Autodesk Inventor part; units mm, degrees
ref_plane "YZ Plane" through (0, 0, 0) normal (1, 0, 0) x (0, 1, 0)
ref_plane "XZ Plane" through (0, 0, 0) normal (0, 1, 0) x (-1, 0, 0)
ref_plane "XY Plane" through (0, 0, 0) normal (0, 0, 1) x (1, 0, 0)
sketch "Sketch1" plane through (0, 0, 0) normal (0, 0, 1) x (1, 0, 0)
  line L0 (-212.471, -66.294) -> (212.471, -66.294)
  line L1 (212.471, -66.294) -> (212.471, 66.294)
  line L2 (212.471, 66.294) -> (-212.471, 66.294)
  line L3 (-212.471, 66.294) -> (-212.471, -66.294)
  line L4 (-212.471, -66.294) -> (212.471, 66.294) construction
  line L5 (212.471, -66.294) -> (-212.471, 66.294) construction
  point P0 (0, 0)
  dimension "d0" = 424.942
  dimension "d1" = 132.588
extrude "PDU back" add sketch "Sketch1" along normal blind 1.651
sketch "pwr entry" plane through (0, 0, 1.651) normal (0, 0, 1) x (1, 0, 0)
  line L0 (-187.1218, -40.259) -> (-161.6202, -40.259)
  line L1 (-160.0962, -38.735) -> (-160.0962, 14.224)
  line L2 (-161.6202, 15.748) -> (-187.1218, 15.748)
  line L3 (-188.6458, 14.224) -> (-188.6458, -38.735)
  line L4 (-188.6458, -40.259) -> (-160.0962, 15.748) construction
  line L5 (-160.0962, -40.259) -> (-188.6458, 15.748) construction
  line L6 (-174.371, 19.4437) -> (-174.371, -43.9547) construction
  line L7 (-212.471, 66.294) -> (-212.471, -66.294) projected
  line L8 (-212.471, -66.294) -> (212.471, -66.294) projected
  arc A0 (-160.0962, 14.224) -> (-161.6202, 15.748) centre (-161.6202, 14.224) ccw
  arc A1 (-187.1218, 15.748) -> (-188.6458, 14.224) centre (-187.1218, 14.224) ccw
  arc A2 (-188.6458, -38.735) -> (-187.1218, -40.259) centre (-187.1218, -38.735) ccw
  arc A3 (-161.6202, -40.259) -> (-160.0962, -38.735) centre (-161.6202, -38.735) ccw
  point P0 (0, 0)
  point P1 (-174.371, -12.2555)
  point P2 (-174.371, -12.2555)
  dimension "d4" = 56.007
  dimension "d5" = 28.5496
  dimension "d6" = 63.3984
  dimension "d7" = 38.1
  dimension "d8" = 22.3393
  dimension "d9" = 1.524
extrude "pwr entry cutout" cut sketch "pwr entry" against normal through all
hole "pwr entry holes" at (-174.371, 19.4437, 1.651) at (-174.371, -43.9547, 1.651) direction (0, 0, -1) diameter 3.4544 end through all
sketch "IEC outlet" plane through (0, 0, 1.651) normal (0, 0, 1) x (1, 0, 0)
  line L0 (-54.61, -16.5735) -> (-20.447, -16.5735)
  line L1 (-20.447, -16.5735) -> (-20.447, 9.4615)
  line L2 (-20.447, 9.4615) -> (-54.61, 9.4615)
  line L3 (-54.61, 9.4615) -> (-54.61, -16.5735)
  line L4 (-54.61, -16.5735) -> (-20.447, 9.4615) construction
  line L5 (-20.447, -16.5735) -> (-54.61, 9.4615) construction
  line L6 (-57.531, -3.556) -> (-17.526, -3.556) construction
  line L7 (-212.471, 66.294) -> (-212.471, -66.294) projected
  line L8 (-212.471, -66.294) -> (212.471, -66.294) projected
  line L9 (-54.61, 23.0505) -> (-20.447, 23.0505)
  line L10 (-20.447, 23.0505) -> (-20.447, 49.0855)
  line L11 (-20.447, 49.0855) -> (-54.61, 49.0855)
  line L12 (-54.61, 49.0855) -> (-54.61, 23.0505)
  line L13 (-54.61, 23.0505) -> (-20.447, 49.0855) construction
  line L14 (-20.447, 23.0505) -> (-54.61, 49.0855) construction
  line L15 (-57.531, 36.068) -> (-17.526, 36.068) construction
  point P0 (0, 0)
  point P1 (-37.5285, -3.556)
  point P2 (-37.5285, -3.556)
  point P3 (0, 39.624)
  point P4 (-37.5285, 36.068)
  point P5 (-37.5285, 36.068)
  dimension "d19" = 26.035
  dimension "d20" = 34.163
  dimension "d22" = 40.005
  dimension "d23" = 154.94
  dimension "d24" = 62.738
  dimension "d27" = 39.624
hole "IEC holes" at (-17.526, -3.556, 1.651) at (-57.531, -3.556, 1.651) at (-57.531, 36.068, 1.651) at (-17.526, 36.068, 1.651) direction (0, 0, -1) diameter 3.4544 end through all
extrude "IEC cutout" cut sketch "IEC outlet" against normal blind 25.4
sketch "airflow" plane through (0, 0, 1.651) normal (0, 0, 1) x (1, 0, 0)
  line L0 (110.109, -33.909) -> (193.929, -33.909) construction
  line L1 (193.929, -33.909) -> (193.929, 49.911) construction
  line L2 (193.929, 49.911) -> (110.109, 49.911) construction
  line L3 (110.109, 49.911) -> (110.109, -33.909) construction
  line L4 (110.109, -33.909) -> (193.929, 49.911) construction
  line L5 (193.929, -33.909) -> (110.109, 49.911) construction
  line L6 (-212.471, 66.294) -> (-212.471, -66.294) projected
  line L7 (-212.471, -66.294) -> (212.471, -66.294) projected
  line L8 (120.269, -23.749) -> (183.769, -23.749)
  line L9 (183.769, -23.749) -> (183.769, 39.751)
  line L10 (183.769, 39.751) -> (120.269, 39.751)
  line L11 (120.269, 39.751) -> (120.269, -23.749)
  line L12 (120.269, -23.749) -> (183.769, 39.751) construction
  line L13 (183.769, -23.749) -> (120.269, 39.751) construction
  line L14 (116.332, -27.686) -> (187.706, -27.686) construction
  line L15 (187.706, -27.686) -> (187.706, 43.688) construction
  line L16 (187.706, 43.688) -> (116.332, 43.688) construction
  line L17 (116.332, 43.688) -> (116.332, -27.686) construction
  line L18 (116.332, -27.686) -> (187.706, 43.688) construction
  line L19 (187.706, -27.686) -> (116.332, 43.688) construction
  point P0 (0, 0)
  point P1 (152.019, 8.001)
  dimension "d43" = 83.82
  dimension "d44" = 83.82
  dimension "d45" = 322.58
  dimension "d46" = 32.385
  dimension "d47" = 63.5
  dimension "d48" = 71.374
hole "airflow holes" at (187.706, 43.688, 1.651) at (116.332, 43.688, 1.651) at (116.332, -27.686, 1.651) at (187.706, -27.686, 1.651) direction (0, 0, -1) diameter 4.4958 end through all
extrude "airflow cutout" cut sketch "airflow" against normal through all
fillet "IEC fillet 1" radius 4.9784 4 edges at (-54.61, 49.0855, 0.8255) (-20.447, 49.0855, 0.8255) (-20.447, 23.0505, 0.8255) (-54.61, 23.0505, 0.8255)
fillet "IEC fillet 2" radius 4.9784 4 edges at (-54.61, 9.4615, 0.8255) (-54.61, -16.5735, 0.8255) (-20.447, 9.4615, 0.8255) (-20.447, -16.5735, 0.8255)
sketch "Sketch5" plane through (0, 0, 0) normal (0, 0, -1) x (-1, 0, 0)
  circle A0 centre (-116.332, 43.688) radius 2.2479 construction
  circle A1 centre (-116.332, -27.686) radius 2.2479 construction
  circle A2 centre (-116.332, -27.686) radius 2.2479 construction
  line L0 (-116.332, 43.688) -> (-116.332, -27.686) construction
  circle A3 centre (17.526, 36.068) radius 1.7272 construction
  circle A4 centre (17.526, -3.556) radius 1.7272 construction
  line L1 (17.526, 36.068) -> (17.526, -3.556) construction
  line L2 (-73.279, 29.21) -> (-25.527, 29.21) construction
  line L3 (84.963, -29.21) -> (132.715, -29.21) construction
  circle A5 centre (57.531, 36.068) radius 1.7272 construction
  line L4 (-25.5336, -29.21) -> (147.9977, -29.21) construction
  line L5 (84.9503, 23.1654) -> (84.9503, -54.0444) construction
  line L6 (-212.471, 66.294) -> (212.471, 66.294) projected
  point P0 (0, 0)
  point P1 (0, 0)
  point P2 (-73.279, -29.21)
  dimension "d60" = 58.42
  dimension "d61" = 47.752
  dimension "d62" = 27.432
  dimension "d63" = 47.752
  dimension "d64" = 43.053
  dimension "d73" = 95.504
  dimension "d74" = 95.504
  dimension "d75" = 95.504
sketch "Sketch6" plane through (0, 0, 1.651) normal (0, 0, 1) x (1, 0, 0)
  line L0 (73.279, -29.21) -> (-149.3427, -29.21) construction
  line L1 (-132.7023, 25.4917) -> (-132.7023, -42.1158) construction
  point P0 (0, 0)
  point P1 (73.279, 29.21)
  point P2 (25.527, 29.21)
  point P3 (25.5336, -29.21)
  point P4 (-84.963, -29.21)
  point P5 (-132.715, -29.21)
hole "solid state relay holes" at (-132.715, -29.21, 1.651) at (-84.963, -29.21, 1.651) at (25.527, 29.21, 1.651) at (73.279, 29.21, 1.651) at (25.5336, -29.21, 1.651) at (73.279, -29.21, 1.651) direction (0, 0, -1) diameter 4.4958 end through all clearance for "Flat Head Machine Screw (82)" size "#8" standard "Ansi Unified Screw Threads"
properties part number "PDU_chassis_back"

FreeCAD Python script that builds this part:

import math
import FreeCAD as App
import Part
import Sketcher

V = App.Vector
Q = App.Units.Quantity


def edges_at(feature, points):
    """Names of the edges that pass closest to the given points."""
    edges = feature.Shape.Edges
    near = lambda p: min(range(len(edges)), key=lambda i: edges[i].distToShape(Part.Vertex(*p))[0])
    return sorted({f"Edge{near(p) + 1}" for p in points})

doc = App.newDocument("Part")
params = doc.addObject("Spreadsheet::Sheet", "Params")
for row, (alias, value) in enumerate([
    ("sketch1_width", "16.73 in"),
    ("sketch1_height", "5.22 in"),
    ("pad1_length", "0.065 in"),
    ("sketch2_radius", "0.06 in"),
    ("sketch2_height", "2.085 in"),
    ("sketch3_diameter", "0.136 in"),
    ("hole_diameter", "0.136 in"),
    ("sketch4_diameter", "0.136 in"),
    ("hole2_diameter", "0.136 in"),
    ("sketch5_width", "1.345 in"),
    ("sketch5_height", "1.025 in"),
    ("pocket2_length", "1 in"),
    ("sketch6_diameter", "0.177 in"),
    ("hole3_diameter", "0.177 in"),
    ("sketch7_width", "2.5 in"),
    ("fillet_radius", "0.196 in"),
    ("fillet2_radius", "0.196 in"),
    ("sketch8_diameter", "0.177 in"),
    ("hole4_diameter", "0.177 in"),
], start=1):
    params.set(f"A{row}", alias)
    params.set(f"B{row}", "=" + value)
    params.setAlias(f"B{row}", alias)

body = doc.addObject("PartDesign::Body", "Body")

sketch1 = body.newObject("Sketcher::SketchObject", "Sketch")
sketch1.AttachmentSupport = (doc.getObject("XY_Plane"), [""])
sketch1.MapMode = "FlatFace"
sketch1.addGeometry([
    Part.LineSegment(V(-212, 66, 0), V(-212, -66, 0)),
    Part.LineSegment(V(-212, -66, 0), V(212, -66, 0)),
    Part.LineSegment(V(212, -66, 0), V(212, 66, 0)),
    Part.LineSegment(V(212, 66, 0), V(-212, 66, 0)),
], False)
sketch1.addConstraint([
    Sketcher.Constraint("Coincident", 0, 2, 1, 1),
    Sketcher.Constraint("Coincident", 1, 2, 2, 1),
    Sketcher.Constraint("Coincident", 2, 2, 3, 1),
    Sketcher.Constraint("Coincident", 3, 2, 0, 1),
    Sketcher.Constraint("Vertical", 0),
    Sketcher.Constraint("Horizontal", 1),
    Sketcher.Constraint("Vertical", 2),
    Sketcher.Constraint("Horizontal", 3),
    Sketcher.Constraint("Symmetric", 0, 2, 2, 2, -1, 1),
    Sketcher.Constraint("DistanceX", 1, 1, 1, 2, Q("16.73 in")),
    Sketcher.Constraint("DistanceY", 0, 2, 0, 1, Q("5.22 in")),
])
sketch1.setExpression("Constraints[9]", "Params.sketch1_width")
sketch1.setExpression("Constraints[10]", "Params.sketch1_height")
pad1 = body.newObject("PartDesign::Pad", "Pad")
pad1.Profile = sketch1
pad1.setExpression("Length", "Params.pad1_length")

sketch2 = body.newObject("Sketcher::SketchObject", "Sketch001")
sketch2.AttachmentSupport = (doc.getObject("XY_Plane"), [""])
sketch2.MapMode = "FlatFace"
sketch2.AttachmentOffset = App.Placement(V(0, 0, 0.065 * 25.4), App.Rotation())
sketch2.addGeometry([
    Part.ArcOfCircle(Part.Circle(V(-187.1, -38.7, 0), V(0, 0, 1), 1.5), math.radians(180), math.radians(270)),
    Part.LineSegment(V(-187.1, -40.3, 0), V(-161.6, -40.3, 0)),
    Part.ArcOfCircle(Part.Circle(V(-161.6, -38.7, 0), V(0, 0, 1), 1.5), math.radians(-90), math.radians(0)),
    Part.LineSegment(V(-160.1, -38.7, 0), V(-160.1, 14.2, 0)),
    Part.ArcOfCircle(Part.Circle(V(-161.6, 14.2, 0), V(0, 0, 1), 1.5), math.radians(0), math.radians(90)),
    Part.LineSegment(V(-161.6, 15.7, 0), V(-187.1, 15.7, 0)),
    Part.ArcOfCircle(Part.Circle(V(-187.1, 14.2, 0), V(0, 0, 1), 1.5), math.radians(90), math.radians(180)),
    Part.LineSegment(V(-188.6, 14.2, 0), V(-188.6, -38.7, 0)),
], False)
sketch2.addConstraint([
    Sketcher.Constraint("Tangent", 0, 2, 1, 1),
    Sketcher.Constraint("Tangent", 1, 2, 2, 1),
    Sketcher.Constraint("Tangent", 2, 2, 3, 1),
    Sketcher.Constraint("Tangent", 3, 2, 4, 1),
    Sketcher.Constraint("Tangent", 4, 2, 5, 1),
    Sketcher.Constraint("Tangent", 5, 2, 6, 1),
    Sketcher.Constraint("Tangent", 6, 2, 7, 1),
    Sketcher.Constraint("Tangent", 7, 2, 0, 1),
    Sketcher.Constraint("Horizontal", 1),
    Sketcher.Constraint("Vertical", 3),
    Sketcher.Constraint("Horizontal", 5),
    Sketcher.Constraint("Vertical", 7),
    Sketcher.Constraint("Equal", 0, 2),
    Sketcher.Constraint("Equal", 2, 4),
    Sketcher.Constraint("Equal", 4, 6),
    Sketcher.Constraint("Radius", 0, Q("0.06 in")),
    Sketcher.Constraint("DistanceX", 6, 2, 3, 2, Q("1.124 in")),
    Sketcher.Constraint("DistanceY", 3, 1, 3, 2, Q("2.085 in")),
    Sketcher.Constraint("DistanceY", -1, 1, 4, 3, Q("0.56 in")),
    Sketcher.Constraint("DistanceX", 0, 3, -1, 1, Q("7.367 in")),
])
sketch2.setExpression("Constraints[15]", "Params.sketch2_radius")
sketch2.setExpression("Constraints[17]", "Params.sketch2_height")
pocket1 = body.newObject("PartDesign::Pocket", "Pocket")
pocket1.Profile = sketch2
pocket1.Type = "ThroughAll"

sketch3 = body.newObject("Sketcher::SketchObject", "Sketch002")
sketch3.AttachmentSupport = (doc.getObject("XY_Plane"), [""])
sketch3.MapMode = "FlatFace"
sketch3.AttachmentOffset = App.Placement(V(0, 0, 0.065 * 25.4), App.Rotation())
sketch3.addGeometry([
    Part.Circle(V(-174.4, 19.4, 0), V(0, 0, 1), 1.7),
    Part.Circle(V(-174.4, -44, 0), V(0, 0, 1), 1.7),
], False)
sketch3.addConstraint([
    Sketcher.Constraint("Equal", 0, 1),
    Sketcher.Constraint("Vertical", 0, 3, 1, 3),
    Sketcher.Constraint("Diameter", 0, Q("0.136 in")),
    Sketcher.Constraint("DistanceX", 0, 3, -1, 1, Q("6.865 in")),
    Sketcher.Constraint("DistanceY", 1, 3, 0, 3, Q("2.496 in")),
    Sketcher.Constraint("DistanceY", -1, 1, 0, 3, Q("0.7655 in")),
])
sketch3.setExpression("Constraints[2]", "Params.sketch3_diameter")
doc.recompute()
hole = body.newObject("PartDesign::Hole", "Hole")
hole.Profile = sketch3
hole.ThreadType = "None"
hole.setExpression("Diameter", "Params.hole_diameter")
hole.DepthType = "ThroughAll"

sketch4 = body.newObject("Sketcher::SketchObject", "Sketch003")
sketch4.AttachmentSupport = (doc.getObject("XY_Plane"), [""])
sketch4.MapMode = "FlatFace"
sketch4.AttachmentOffset = App.Placement(V(0, 0, 0.065 * 25.4), App.Rotation())
sketch4.addGeometry([
    Part.Circle(V(-17.5, -3.6, 0), V(0, 0, 1), 1.7),
    Part.Circle(V(-57.5, -3.6, 0), V(0, 0, 1), 1.7),
    Part.Circle(V(-57.5, 36.1, 0), V(0, 0, 1), 1.7),
    Part.Circle(V(-17.5, 36.1, 0), V(0, 0, 1), 1.7),
], False)
sketch4.addConstraint([
    Sketcher.Constraint("Equal", 0, 1),
    Sketcher.Constraint("Equal", 1, 2),
    Sketcher.Constraint("Equal", 2, 3),
    Sketcher.Constraint("Horizontal", 0, 3, 1, 3),
    Sketcher.Constraint("Horizontal", 2, 3, 3, 3),
    Sketcher.Constraint("Vertical", 1, 3, 2, 3),
    Sketcher.Constraint("Vertical", 0, 3, 3, 3),
    Sketcher.Constraint("Diameter", 0, Q("0.136 in")),
    Sketcher.Constraint("DistanceX", 0, 3, -1, 1, Q("0.69 in")),
    Sketcher.Constraint("DistanceY", 0, 3, -1, 1, Q("0.14 in")),
    Sketcher.Constraint("DistanceY", -1, 1, 2, 3, Q("1.42 in")),
    Sketcher.Constraint("DistanceX", 1, 3, -1, 1, Q("2.265 in")),
])
sketch4.setExpression("Constraints[7]", "Params.sketch4_diameter")
doc.recompute()
hole2 = body.newObject("PartDesign::Hole", "Hole001")
hole2.Profile = sketch4
hole2.ThreadType = "None"
hole2.setExpression("Diameter", "Params.hole2_diameter")
hole2.DepthType = "ThroughAll"

sketch5 = body.newObject("Sketcher::SketchObject", "Sketch004")
sketch5.AttachmentSupport = (doc.getObject("XY_Plane"), [""])
sketch5.MapMode = "FlatFace"
sketch5.AttachmentOffset = App.Placement(V(0, 0, 0.065 * 25.4), App.Rotation())
sketch5.addGeometry([
    Part.LineSegment(V(-55, 9, 0), V(-55, -17, 0)),
    Part.LineSegment(V(-55, -17, 0), V(-20, -17, 0)),
    Part.LineSegment(V(-20, -17, 0), V(-20, 9, 0)),
    Part.LineSegment(V(-20, 9, 0), V(-55, 9, 0)),
    Part.LineSegment(V(-55, 49, 0), V(-55, 23, 0)),
    Part.LineSegment(V(-55, 23, 0), V(-20, 23, 0)),
    Part.LineSegment(V(-20, 23, 0), V(-20, 49, 0)),
    Part.LineSegment(V(-20, 49, 0), V(-55, 49, 0)),
], False)
sketch5.addConstraint([
    Sketcher.Constraint("Coincident", 0, 2, 1, 1),
    Sketcher.Constraint("Coincident", 1, 2, 2, 1),
    Sketcher.Constraint("Coincident", 2, 2, 3, 1),
    Sketcher.Constraint("Coincident", 3, 2, 0, 1),
    Sketcher.Constraint("Coincident", 4, 2, 5, 1),
    Sketcher.Constraint("Coincident", 5, 2, 6, 1),
    Sketcher.Constraint("Coincident", 6, 2, 7, 1),
    Sketcher.Constraint("Coincident", 7, 2, 4, 1),
    Sketcher.Constraint("Vertical", 0),
    Sketcher.Constraint("Horizontal", 1),
    Sketcher.Constraint("Vertical", 2),
    Sketcher.Constraint("Horizontal", 3),
    Sketcher.Constraint("Vertical", 4),
    Sketcher.Constraint("Horizontal", 5),
    Sketcher.Constraint("Vertical", 6),
    Sketcher.Constraint("Horizontal", 7),
    Sketcher.Constraint("Vertical", 3, 2, 4, 2),
    Sketcher.Constraint("Vertical", 2, 2, 5, 2),
    Sketcher.Constraint("Equal", 2, 4),
    Sketcher.Constraint("DistanceX", 1, 1, 1, 2, Q("1.345 in")),
    Sketcher.Constraint("DistanceY", 0, 2, 0, 1, Q("1.025 in")),
    Sketcher.Constraint("DistanceY", 0, 2, 4, 2, Q("1.56 in")),
    Sketcher.Constraint("DistanceX", 0, 2, -1, 1, Q("2.15 in")),
    Sketcher.Constraint("DistanceY", 0, 2, -1, 1, Q("0.6525 in")),
])
sketch5.setExpression("Constraints[19]", "Params.sketch5_width")
sketch5.setExpression("Constraints[20]", "Params.sketch5_height")
pocket2 = body.newObject("PartDesign::Pocket", "Pocket001")
pocket2.Profile = sketch5
pocket2.setExpression("Length", "Params.pocket2_length")

sketch6 = body.newObject("Sketcher::SketchObject", "Sketch005")
sketch6.AttachmentSupport = (doc.getObject("XY_Plane"), [""])
sketch6.MapMode = "FlatFace"
sketch6.AttachmentOffset = App.Placement(V(0, 0, 0.065 * 25.4), App.Rotation())
sketch6.addGeometry([
    Part.Circle(V(187.7, 43.7, 0), V(0, 0, 1), 2.2),
    Part.Circle(V(116.3, 43.7, 0), V(0, 0, 1), 2.2),
    Part.Circle(V(116.3, -27.7, 0), V(0, 0, 1), 2.2),
    Part.Circle(V(187.7, -27.7, 0), V(0, 0, 1), 2.2),
], False)
sketch6.addConstraint([
    Sketcher.Constraint("Equal", 0, 1),
    Sketcher.Constraint("Equal", 1, 2),
    Sketcher.Constraint("Equal", 2, 3),
    Sketcher.Constraint("Horizontal", 0, 3, 1, 3),
    Sketcher.Constraint("Horizontal", 2, 3, 3, 3),
    Sketcher.Constraint("Vertical", 1, 3, 2, 3),
    Sketcher.Constraint("Vertical", 0, 3, 3, 3),
    Sketcher.Constraint("Diameter", 0, Q("0.177 in")),
    Sketcher.Constraint("DistanceX", -1, 1, 0, 3, Q("7.39 in")),
    Sketcher.Constraint("DistanceY", -1, 1, 0, 3, Q("1.72 in")),
    Sketcher.Constraint("DistanceX", -1, 1, 1, 3, Q("4.58 in")),
    Sketcher.Constraint("DistanceY", 2, 3, -1, 1, Q("1.09 in")),
])
sketch6.setExpression("Constraints[7]", "Params.sketch6_diameter")
doc.recompute()
hole3 = body.newObject("PartDesign::Hole", "Hole002")
hole3.Profile = sketch6
hole3.ThreadType = "None"
hole3.setExpression("Diameter", "Params.hole3_diameter")
hole3.DepthType = "ThroughAll"

sketch7 = body.newObject("Sketcher::SketchObject", "Sketch006")
sketch7.AttachmentSupport = (doc.getObject("XY_Plane"), [""])
sketch7.MapMode = "FlatFace"
sketch7.AttachmentOffset = App.Placement(V(0, 0, 0.065 * 25.4), App.Rotation())
sketch7.addGeometry([
    Part.LineSegment(V(120, 40, 0), V(120, -24, 0)),
    Part.LineSegment(V(120, -24, 0), V(184, -24, 0)),
    Part.LineSegment(V(184, -24, 0), V(184, 40, 0)),
    Part.LineSegment(V(184, 40, 0), V(120, 40, 0)),
], False)
sketch7.addConstraint([
    Sketcher.Constraint("Coincident", 0, 2, 1, 1),
    Sketcher.Constraint("Coincident", 1, 2, 2, 1),
    Sketcher.Constraint("Coincident", 2, 2, 3, 1),
    Sketcher.Constraint("Coincident", 3, 2, 0, 1),
    Sketcher.Constraint("Vertical", 0),
    Sketcher.Constraint("Horizontal", 1),
    Sketcher.Constraint("Vertical", 2),
    Sketcher.Constraint("Horizontal", 3),
    Sketcher.Constraint("Equal", 3, 0),
    Sketcher.Constraint("DistanceX", 1, 1, 1, 2, Q("2.5 in")),
    Sketcher.Constraint("DistanceX", -1, 1, 0, 2, Q("4.735 in")),
    Sketcher.Constraint("DistanceY", 0, 2, -1, 1, Q("0.935 in")),
])
sketch7.setExpression("Constraints[9]", "Params.sketch7_width")
pocket3 = body.newObject("PartDesign::Pocket", "Pocket002")
pocket3.Profile = sketch7
pocket3.Type = "ThroughAll"
doc.recompute()

fillet = body.newObject("PartDesign::Fillet", "Fillet")
fillet.Base = (pocket3, edges_at(pocket3, [
    (-54.61, 49.086, 0.826),
    (-20.447, 49.086, 0.826),
    (-20.447, 23.05, 0.826),
    (-54.61, 23.05, 0.826),
]))
fillet.setExpression("Radius", "Params.fillet_radius")
doc.recompute()

fillet2 = body.newObject("PartDesign::Fillet", "Fillet001")
fillet2.Base = (fillet, edges_at(fillet, [
    (-54.61, 9.461, 0.826),
    (-54.61, -16.573, 0.826),
    (-20.447, 9.461, 0.826),
    (-20.447, -16.573, 0.826),
]))
fillet2.setExpression("Radius", "Params.fillet2_radius")

sketch8 = body.newObject("Sketcher::SketchObject", "Sketch007")
sketch8.AttachmentSupport = (doc.getObject("XY_Plane"), [""])
sketch8.MapMode = "FlatFace"
sketch8.AttachmentOffset = App.Placement(V(0, 0, 0.065 * 25.4), App.Rotation())
sketch8.addGeometry([
    Part.Circle(V(-132.7, -29.2, 0), V(0, 0, 1), 2.2),
    Part.Circle(V(-85, -29.2, 0), V(0, 0, 1), 2.2),
    Part.Circle(V(25.5, 29.2, 0), V(0, 0, 1), 2.2),
    Part.Circle(V(73.3, 29.2, 0), V(0, 0, 1), 2.2),
    Part.Circle(V(25.5, -29.2, 0), V(0, 0, 1), 2.2),
    Part.Circle(V(73.3, -29.2, 0), V(0, 0, 1), 2.2),
], False)
sketch8.addConstraint([
    Sketcher.Constraint("Equal", 0, 1),
    Sketcher.Constraint("Equal", 1, 2),
    Sketcher.Constraint("Equal", 2, 3),
    Sketcher.Constraint("Equal", 3, 4),
    Sketcher.Constraint("Equal", 4, 5),
    Sketcher.Constraint("Symmetric", 3, 3, 5, 3, -1),
    Sketcher.Constraint("Horizontal", 0, 3, 1, 3),
    Sketcher.Constraint("Horizontal", 2, 3, 3, 3),
    Sketcher.Constraint("Horizontal", 1, 3, 4, 3),
    Sketcher.Constraint("Horizontal", 4, 3, 5, 3),
    Sketcher.Constraint("Diameter", 0, Q("0.177 in")),
    Sketcher.Constraint("DistanceY", 1, 3, 2, 3, Q("2.3 in")),
    Sketcher.Constraint("DistanceX", 0, 3, 1, 3, Q("1.88 in")),
    Sketcher.Constraint("DistanceX", 1, 3, 2, 3, Q("4.35 in")),
    Sketcher.Constraint("DistanceX", 2, 3, 3, 3, Q("1.88 in")),
    Sketcher.Constraint("DistanceX", 0, 3, -1, 1, Q("5.225 in")),
    Sketcher.Constraint("DistanceX", -1, 1, 4, 3, 25.5336),
])
sketch8.setExpression("Constraints[10]", "Params.sketch8_diameter")
doc.recompute()
hole4 = body.newObject("PartDesign::Hole", "Hole003")
hole4.Profile = sketch8
hole4.ThreadType = "None"
hole4.setExpression("Diameter", "Params.hole4_diameter")
hole4.DepthType = "ThroughAll"

doc.recompute()
